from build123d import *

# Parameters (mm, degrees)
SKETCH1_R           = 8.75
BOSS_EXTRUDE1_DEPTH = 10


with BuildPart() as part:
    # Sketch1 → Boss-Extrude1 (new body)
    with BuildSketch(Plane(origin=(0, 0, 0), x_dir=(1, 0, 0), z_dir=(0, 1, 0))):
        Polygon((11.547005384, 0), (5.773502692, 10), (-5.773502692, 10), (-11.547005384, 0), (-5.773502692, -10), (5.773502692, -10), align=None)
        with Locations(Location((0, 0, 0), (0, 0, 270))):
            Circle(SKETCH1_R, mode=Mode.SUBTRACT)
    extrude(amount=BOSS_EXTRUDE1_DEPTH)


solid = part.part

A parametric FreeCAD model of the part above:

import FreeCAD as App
import Part
import Sketcher
Q = App.Units.Quantity


def add_polygon(sketch, points):
    """Adds a closed chain of lines whose ends are joined by coincident constraints."""
    first, n = sketch.GeometryCount, len(points)
    for a, b in zip(points, points[1:] + points[:1]):
        sketch.addGeometry(Part.LineSegment(App.Vector(*a, 0), App.Vector(*b, 0)), False)
    for i in range(n):
        sketch.addConstraint(Sketcher.Constraint("Coincident", first + i, 2, first + (i + 1) % n, 1))

doc = App.newDocument("Part")
body = doc.addObject("PartDesign::Body", "Body")

# Sketch on XZ plane
sketch1 = body.newObject("Sketcher::SketchObject", "Sketch")
sketch1.AttachmentSupport = (doc.getObject("XZ_Plane"), [""])
sketch1.MapMode = "FlatFace"
add_polygon(sketch1, [(12, 0), (6, -10), (-6, -10), (-12, 0), (-6, 10), (6, 10)])  # lines 0-5
sketch1.addGeometry(Part.Circle(App.Vector(0, 0, 0), App.Vector(0, 0, 1), 9), False)  # 6
sketch1.addConstraint(Sketcher.Constraint("Horizontal", 1))
sketch1.addConstraint(Sketcher.Constraint("Horizontal", 4))
sketch1.addConstraint(Sketcher.Constraint("Coincident", 6, 3, -1, 1))
sketch1.addConstraint(Sketcher.Constraint("Symmetric", 0, 2, 3, 2, -1, 1))
sketch1.addConstraint(Sketcher.Constraint("Symmetric", 2, 2, 5, 2, -1, 1))
sketch1.addConstraint(Sketcher.Constraint("PointOnObject", 2, 2, -1))
sketch1.addConstraint(Sketcher.Constraint("Parallel", 2, 5))
sketch1.addConstraint(Sketcher.Constraint("Vertical", 1, 2, 3, 2))
sketch1.addConstraint(Sketcher.Constraint("Diameter", 6, Q("17.5 mm")))
sketch1.addConstraint(Sketcher.Constraint("Angle", 0, Q("-120 deg")))
sketch1.addConstraint(Sketcher.Constraint("DistanceY", 0, 2, -1, 1, Q("10 mm")))
sketch1.addConstraint(Sketcher.Constraint("DistanceX", 1, 2, 1, 1, Q("11.547005 mm")))
pad1 = body.newObject("PartDesign::Pad", "Pad")
pad1.Profile = sketch1
pad1.Length = 10
pad1.Reversed = True

doc.recompute()
